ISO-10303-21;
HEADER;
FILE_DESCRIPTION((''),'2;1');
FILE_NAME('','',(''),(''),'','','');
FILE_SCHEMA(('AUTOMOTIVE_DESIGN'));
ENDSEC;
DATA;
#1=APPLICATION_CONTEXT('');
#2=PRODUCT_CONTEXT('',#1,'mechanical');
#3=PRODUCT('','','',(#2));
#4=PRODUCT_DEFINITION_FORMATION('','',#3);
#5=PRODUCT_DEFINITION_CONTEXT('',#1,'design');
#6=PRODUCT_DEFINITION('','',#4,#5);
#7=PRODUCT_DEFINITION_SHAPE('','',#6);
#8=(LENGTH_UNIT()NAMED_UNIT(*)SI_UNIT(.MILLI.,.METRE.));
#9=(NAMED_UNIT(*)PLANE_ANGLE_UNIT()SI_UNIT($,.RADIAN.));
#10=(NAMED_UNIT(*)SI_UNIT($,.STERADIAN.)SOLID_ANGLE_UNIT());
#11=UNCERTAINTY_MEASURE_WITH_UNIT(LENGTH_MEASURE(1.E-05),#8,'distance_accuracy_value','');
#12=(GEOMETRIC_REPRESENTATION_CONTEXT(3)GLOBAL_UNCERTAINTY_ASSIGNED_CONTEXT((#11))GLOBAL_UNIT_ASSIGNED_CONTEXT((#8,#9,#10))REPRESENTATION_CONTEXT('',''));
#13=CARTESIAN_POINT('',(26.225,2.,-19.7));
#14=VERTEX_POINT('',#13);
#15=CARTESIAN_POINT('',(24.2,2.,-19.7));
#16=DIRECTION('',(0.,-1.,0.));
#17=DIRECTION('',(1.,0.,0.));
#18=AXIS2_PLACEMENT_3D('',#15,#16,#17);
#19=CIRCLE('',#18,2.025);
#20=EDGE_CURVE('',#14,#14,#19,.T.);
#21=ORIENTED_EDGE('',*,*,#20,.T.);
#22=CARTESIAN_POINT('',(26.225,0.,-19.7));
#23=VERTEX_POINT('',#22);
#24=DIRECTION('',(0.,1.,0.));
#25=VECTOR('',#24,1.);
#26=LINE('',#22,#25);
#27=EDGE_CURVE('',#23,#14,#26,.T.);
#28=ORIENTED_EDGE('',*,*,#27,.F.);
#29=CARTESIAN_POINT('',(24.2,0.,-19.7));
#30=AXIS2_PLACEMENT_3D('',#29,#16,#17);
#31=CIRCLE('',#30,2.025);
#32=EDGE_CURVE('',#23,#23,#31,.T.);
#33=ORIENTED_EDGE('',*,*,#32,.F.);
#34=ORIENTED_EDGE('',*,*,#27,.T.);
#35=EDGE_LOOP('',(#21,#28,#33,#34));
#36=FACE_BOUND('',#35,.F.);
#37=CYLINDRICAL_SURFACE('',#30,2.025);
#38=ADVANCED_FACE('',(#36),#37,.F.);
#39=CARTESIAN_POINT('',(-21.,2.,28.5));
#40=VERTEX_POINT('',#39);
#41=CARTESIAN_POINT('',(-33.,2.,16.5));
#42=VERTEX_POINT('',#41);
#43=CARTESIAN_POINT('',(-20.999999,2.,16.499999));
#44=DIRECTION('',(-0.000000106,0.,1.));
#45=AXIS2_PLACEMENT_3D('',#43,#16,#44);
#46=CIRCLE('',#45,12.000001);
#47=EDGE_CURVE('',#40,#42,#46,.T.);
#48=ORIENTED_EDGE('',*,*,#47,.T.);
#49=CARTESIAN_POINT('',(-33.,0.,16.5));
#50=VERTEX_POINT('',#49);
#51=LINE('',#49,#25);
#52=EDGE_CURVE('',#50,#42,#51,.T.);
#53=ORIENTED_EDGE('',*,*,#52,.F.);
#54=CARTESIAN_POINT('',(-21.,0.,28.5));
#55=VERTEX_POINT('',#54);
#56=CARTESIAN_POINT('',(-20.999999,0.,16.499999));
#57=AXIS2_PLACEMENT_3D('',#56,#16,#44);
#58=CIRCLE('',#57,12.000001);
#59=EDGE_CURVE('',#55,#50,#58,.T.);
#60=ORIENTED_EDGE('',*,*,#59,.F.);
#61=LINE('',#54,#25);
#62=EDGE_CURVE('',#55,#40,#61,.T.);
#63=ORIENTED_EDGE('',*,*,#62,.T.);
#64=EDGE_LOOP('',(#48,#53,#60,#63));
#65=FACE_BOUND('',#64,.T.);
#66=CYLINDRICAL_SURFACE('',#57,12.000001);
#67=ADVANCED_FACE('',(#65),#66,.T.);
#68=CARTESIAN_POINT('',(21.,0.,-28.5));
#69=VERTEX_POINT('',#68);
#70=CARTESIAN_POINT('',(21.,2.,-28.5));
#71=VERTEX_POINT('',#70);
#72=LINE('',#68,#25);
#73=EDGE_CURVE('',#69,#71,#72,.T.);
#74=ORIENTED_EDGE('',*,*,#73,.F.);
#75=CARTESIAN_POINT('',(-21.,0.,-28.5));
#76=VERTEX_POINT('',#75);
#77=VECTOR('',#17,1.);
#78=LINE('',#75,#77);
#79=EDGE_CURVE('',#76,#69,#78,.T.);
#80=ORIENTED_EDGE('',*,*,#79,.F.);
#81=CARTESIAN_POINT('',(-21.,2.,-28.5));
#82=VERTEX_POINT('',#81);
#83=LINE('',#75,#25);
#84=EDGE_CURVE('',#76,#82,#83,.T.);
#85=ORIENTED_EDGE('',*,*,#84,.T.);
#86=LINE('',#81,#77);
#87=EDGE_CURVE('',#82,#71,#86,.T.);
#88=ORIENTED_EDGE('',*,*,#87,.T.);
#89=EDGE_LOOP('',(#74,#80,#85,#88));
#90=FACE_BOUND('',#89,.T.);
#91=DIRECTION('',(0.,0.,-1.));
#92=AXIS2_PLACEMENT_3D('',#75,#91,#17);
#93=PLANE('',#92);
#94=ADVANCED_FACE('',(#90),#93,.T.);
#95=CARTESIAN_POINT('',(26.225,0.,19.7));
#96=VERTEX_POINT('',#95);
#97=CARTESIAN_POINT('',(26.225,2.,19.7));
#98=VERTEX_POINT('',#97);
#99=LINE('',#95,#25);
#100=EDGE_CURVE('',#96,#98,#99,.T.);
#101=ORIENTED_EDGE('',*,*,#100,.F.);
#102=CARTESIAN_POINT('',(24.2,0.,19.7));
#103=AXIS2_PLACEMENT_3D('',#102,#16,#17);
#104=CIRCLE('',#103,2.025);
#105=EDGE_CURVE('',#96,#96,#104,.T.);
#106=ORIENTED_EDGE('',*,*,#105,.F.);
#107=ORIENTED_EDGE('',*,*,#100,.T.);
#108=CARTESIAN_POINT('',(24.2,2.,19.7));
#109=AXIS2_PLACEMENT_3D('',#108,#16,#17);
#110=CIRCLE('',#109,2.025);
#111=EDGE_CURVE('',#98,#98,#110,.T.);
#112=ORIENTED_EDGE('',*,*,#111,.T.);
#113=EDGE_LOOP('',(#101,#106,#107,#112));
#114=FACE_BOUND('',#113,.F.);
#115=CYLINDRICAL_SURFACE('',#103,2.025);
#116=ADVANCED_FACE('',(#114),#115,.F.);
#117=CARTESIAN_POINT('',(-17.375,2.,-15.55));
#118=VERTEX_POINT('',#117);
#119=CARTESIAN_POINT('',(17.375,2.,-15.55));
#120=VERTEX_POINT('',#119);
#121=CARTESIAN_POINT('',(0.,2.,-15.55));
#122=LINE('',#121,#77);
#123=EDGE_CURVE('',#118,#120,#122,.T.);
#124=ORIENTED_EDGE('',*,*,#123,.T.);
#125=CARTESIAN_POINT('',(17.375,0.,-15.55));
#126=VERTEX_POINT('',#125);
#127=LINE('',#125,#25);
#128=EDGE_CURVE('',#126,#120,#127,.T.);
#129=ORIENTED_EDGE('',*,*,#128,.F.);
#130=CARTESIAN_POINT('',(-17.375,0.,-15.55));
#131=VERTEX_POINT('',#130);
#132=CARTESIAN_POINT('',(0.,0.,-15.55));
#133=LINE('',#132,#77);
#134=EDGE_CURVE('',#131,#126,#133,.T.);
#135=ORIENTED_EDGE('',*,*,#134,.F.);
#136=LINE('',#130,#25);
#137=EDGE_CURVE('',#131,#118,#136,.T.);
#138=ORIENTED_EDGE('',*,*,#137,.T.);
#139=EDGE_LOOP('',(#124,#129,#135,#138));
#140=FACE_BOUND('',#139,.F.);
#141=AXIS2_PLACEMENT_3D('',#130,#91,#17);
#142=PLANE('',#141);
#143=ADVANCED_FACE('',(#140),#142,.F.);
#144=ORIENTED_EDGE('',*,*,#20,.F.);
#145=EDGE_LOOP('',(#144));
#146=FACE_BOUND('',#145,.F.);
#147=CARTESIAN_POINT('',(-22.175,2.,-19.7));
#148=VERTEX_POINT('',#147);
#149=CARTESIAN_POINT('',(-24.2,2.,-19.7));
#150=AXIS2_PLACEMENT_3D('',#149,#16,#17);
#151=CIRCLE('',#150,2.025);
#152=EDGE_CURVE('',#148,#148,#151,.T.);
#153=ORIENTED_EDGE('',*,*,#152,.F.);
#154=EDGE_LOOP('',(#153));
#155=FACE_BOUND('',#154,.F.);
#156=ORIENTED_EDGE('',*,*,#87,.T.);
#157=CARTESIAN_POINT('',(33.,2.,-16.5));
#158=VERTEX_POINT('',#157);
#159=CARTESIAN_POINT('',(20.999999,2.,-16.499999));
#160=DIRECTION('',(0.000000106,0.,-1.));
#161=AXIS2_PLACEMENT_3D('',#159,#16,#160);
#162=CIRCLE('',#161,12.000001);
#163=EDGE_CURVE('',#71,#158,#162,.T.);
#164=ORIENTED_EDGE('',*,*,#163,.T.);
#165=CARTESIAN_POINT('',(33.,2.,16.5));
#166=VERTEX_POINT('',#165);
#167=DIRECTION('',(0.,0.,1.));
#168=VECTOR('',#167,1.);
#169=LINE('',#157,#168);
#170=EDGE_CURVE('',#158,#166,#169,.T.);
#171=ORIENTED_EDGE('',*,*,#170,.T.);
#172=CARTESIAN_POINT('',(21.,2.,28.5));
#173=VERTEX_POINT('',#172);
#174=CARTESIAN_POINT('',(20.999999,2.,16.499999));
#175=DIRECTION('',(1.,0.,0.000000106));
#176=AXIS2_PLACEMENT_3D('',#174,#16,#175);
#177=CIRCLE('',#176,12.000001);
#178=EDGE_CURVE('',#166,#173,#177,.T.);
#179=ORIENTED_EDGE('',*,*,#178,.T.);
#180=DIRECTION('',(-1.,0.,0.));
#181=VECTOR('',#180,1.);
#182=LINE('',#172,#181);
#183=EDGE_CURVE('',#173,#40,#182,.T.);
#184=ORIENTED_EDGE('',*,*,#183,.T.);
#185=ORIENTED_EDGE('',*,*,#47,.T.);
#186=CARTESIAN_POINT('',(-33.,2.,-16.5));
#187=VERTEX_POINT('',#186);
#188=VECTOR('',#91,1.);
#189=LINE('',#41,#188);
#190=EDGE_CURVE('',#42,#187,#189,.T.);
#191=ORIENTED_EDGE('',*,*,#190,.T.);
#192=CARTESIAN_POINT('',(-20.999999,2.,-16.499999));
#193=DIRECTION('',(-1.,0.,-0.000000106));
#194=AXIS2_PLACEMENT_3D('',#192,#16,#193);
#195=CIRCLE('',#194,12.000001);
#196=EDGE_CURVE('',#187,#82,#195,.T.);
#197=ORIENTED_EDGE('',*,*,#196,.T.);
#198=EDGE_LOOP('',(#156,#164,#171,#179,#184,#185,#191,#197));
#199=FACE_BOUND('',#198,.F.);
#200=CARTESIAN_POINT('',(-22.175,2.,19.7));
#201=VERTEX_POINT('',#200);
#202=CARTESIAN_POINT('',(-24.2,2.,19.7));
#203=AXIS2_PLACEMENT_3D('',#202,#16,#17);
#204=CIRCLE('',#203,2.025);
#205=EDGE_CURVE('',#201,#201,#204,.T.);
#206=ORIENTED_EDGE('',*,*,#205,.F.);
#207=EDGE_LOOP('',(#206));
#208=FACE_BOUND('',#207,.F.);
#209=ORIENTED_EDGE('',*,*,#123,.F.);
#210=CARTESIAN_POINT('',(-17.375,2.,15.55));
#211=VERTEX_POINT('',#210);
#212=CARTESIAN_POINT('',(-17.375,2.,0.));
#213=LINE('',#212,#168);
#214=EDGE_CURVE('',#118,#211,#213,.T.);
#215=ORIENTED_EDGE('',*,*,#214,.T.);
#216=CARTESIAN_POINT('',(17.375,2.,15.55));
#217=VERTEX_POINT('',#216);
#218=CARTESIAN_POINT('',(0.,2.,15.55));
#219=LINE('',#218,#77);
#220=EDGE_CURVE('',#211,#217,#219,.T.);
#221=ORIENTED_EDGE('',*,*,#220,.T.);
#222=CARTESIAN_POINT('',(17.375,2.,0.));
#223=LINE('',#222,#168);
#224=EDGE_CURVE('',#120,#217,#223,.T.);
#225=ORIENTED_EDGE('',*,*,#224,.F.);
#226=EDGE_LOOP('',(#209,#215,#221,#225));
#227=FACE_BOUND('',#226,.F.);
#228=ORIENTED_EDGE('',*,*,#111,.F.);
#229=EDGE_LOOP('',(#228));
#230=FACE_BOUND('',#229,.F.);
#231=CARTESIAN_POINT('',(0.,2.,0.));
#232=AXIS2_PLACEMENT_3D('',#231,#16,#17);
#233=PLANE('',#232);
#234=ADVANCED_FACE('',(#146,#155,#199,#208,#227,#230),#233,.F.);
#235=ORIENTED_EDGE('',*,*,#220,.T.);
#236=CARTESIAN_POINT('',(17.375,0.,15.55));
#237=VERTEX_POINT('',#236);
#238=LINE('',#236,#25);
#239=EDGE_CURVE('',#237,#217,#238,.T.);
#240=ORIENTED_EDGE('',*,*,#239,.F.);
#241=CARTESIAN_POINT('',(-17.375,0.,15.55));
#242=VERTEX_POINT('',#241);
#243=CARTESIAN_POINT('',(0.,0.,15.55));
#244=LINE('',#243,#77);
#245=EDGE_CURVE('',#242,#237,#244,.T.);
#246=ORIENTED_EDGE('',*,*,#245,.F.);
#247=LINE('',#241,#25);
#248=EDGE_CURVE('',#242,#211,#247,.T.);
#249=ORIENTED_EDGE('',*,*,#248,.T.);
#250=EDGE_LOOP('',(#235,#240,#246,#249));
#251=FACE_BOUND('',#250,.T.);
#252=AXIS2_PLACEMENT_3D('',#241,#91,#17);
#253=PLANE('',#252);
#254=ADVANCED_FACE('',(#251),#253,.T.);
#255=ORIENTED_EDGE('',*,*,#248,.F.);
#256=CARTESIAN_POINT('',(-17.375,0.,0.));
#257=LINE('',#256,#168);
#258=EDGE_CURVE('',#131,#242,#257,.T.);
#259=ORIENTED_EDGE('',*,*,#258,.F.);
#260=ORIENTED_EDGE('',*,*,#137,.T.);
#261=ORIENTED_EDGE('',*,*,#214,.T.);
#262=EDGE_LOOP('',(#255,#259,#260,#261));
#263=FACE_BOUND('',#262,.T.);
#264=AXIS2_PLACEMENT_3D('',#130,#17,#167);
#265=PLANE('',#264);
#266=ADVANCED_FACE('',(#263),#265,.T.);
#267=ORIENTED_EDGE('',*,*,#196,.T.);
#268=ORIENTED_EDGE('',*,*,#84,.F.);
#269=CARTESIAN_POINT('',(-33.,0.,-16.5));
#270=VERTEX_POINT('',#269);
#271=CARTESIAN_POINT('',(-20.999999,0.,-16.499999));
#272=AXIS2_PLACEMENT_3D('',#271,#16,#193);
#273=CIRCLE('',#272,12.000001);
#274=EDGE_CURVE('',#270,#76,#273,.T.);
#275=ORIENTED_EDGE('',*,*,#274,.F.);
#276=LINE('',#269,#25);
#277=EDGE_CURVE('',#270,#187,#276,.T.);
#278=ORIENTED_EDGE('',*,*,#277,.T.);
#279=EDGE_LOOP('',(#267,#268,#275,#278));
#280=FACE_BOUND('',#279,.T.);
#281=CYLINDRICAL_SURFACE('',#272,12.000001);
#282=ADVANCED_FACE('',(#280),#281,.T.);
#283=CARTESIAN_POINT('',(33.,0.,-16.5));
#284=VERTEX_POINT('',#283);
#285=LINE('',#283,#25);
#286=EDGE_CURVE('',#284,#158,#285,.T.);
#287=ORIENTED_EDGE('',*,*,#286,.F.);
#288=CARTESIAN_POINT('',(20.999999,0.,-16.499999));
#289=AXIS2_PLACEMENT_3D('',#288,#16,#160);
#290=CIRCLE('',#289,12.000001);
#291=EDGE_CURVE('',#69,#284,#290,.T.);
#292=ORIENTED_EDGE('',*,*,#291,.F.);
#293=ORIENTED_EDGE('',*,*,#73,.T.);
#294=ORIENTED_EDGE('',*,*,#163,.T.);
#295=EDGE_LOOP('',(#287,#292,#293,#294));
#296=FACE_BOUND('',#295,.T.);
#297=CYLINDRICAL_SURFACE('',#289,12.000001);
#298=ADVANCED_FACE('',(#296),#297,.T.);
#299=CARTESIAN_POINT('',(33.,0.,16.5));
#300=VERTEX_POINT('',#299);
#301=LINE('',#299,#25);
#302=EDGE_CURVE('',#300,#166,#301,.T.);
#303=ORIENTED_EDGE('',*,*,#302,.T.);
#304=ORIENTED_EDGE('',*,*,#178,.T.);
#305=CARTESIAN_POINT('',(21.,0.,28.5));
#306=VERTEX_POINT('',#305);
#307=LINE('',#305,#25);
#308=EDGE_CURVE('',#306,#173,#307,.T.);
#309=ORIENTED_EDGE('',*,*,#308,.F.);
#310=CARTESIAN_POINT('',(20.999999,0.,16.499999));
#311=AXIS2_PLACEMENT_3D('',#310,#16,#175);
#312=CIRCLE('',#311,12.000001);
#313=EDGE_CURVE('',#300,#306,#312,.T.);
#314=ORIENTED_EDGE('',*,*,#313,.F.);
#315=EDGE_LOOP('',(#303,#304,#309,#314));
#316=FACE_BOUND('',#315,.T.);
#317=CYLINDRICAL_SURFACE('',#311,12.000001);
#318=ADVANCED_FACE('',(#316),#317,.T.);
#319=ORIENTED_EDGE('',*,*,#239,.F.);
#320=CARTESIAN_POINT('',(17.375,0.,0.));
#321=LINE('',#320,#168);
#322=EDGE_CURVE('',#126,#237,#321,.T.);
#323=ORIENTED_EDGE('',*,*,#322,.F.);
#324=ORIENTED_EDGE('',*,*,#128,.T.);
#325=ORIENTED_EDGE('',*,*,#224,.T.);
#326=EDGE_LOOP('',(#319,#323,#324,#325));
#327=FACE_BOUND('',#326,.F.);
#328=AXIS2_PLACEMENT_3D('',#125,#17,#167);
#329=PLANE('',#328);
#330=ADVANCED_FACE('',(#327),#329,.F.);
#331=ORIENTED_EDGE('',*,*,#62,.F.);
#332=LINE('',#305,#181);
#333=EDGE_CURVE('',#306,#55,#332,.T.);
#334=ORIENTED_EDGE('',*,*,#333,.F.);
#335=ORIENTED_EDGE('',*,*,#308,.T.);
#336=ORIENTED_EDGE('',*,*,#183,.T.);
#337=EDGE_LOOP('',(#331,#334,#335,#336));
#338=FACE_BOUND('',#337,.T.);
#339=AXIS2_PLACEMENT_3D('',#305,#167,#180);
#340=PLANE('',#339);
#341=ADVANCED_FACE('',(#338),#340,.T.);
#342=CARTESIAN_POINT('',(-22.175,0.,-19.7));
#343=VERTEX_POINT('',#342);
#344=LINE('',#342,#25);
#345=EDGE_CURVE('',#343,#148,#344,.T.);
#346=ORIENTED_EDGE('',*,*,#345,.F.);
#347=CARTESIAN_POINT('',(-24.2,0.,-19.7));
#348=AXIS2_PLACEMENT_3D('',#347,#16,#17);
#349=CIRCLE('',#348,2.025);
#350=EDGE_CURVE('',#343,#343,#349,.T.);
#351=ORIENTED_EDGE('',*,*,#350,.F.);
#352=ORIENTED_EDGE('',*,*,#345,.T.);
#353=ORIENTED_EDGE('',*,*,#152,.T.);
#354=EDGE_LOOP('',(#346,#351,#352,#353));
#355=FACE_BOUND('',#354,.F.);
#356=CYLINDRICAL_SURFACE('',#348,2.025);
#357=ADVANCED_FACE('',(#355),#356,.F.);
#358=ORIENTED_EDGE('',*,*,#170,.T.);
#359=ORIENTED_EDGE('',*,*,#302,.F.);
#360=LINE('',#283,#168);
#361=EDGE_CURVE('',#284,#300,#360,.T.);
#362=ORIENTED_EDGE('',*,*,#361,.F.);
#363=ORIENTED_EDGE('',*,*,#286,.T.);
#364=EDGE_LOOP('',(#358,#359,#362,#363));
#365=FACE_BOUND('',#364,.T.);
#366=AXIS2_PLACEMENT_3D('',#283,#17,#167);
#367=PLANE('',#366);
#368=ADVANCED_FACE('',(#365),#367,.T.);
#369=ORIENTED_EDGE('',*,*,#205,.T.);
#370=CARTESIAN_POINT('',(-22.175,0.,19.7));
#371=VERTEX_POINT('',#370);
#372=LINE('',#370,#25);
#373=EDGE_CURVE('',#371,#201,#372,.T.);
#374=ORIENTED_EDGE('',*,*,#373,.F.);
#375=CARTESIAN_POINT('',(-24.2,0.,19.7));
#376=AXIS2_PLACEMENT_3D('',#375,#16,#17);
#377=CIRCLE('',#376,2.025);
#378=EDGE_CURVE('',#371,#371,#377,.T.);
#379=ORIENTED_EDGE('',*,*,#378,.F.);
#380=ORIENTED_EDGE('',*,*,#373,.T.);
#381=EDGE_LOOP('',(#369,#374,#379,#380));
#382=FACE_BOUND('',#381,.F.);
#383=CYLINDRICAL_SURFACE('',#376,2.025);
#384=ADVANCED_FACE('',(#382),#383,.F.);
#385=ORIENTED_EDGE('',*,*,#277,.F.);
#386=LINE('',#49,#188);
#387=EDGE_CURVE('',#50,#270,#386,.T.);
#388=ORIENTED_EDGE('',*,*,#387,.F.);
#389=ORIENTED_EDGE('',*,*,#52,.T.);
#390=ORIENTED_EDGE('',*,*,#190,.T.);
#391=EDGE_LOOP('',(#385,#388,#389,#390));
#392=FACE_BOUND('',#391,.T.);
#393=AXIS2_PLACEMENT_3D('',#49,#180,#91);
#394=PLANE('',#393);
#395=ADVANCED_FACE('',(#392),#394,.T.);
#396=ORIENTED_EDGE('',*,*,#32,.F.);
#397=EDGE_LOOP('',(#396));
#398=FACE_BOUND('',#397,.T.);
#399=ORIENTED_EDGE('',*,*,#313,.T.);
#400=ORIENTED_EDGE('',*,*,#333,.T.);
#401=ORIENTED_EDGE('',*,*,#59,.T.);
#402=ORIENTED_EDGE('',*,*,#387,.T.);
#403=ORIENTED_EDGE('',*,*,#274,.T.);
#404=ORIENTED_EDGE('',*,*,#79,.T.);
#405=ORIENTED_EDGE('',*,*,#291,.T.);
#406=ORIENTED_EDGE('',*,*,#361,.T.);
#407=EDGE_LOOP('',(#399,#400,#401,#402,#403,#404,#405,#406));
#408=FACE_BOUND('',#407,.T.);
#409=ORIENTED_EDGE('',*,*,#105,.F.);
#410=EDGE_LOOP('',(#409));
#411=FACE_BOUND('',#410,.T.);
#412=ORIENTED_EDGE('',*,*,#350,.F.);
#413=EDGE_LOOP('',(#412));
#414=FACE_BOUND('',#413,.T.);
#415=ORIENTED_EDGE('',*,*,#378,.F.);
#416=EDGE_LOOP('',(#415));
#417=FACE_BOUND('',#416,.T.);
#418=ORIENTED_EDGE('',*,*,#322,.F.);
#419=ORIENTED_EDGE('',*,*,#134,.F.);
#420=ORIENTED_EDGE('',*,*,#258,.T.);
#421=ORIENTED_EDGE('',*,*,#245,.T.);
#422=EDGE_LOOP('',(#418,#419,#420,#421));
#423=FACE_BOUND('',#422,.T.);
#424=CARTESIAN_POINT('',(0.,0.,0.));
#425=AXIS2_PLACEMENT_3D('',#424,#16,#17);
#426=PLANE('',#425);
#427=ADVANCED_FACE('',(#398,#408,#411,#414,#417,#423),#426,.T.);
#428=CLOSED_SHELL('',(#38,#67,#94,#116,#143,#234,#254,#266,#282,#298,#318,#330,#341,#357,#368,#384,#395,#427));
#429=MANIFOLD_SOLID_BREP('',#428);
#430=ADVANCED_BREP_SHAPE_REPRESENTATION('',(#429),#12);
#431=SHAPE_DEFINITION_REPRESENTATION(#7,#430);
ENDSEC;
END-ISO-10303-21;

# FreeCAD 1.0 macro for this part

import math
import FreeCAD as App
import Part
import Sketcher


def add_polygon(sketch, points):
    """Adds a closed chain of lines whose ends are joined by coincident constraints."""
    first, n = sketch.GeometryCount, len(points)
    for a, b in zip(points, points[1:] + points[:1]):
        sketch.addGeometry(Part.LineSegment(App.Vector(*a, 0), App.Vector(*b, 0)), False)
    for i in range(n):
        sketch.addConstraint(Sketcher.Constraint("Coincident", first + i, 2, first + (i + 1) % n, 1))

doc = App.newDocument("Part")
body = doc.addObject("PartDesign::Body", "Body")

# Sketch on XZ plane
sketch1 = body.newObject("Sketcher::SketchObject", "Sketch")
sketch1.AttachmentSupport = (doc.getObject("XZ_Plane"), [""])
sketch1.MapMode = "FlatFace"
sketch1.addGeometry(Part.LineSegment(App.Vector(-21, -28.5, 0), App.Vector(21, -28.5, 0)), False)  # 0
sketch1.addGeometry(Part.ArcOfCircle(Part.Circle(App.Vector(21, -16.5, 0), App.Vector(0, 0, 1), 12), math.radians(-90), math.radians(0)), False)  # 1
sketch1.addGeometry(Part.LineSegment(App.Vector(33, -16.5, 0), App.Vector(33, 16.5, 0)), False)  # 2
sketch1.addGeometry(Part.ArcOfCircle(Part.Circle(App.Vector(21, 16.5, 0), App.Vector(0, 0, 1), 12), math.radians(0), math.radians(90)), False)  # 3
sketch1.addGeometry(Part.LineSegment(App.Vector(21, 28.5, 0), App.Vector(-21, 28.5, 0)), False)  # 4
sketch1.addGeometry(Part.ArcOfCircle(Part.Circle(App.Vector(-21, 16.5, 0), App.Vector(0, 0, 1), 12), math.radians(90), math.radians(180)), False)  # 5
sketch1.addGeometry(Part.LineSegment(App.Vector(-33, 16.5, 0), App.Vector(-33, -16.5, 0)), False)  # 6
sketch1.addGeometry(Part.ArcOfCircle(Part.Circle(App.Vector(-21, -16.5, 0), App.Vector(0, 0, 1), 12), math.radians(-180), math.radians(-90)), False)  # 7
sketch1.addGeometry(Part.Circle(App.Vector(-24.2, -19.7, 0), App.Vector(0, 0, 1), 2), False)  # 8
sketch1.addGeometry(Part.Circle(App.Vector(24.2, -19.7, 0), App.Vector(0, 0, 1), 2), False)  # 9
add_polygon(sketch1, [(17.4, -15.6), (-17.4, -15.6), (-17.4, 15.6), (17.4, 15.6)])  # lines 10-13
sketch1.addGeometry(Part.Circle(App.Vector(-24.2, 19.7, 0), App.Vector(0, 0, 1), 2), False)  # 14
sketch1.addGeometry(Part.Circle(App.Vector(24.2, 19.7, 0), App.Vector(0, 0, 1), 2), False)  # 15
sketch1.addConstraint(Sketcher.Constraint("Tangent", 0, 2, 1, 1))
sketch1.addConstraint(Sketcher.Constraint("Tangent", 1, 2, 2, 1))
sketch1.addConstraint(Sketcher.Constraint("Tangent", 2, 2, 3, 1))
sketch1.addConstraint(Sketcher.Constraint("Tangent", 3, 2, 4, 1))
sketch1.addConstraint(Sketcher.Constraint("Tangent", 4, 2, 5, 1))
sketch1.addConstraint(Sketcher.Constraint("Tangent", 5, 2, 6, 1))
sketch1.addConstraint(Sketcher.Constraint("Tangent", 6, 2, 7, 1))
sketch1.addConstraint(Sketcher.Constraint("Tangent", 7, 2, 0, 1))
sketch1.addConstraint(Sketcher.Constraint("Horizontal", 0))
sketch1.addConstraint(Sketcher.Constraint("Vertical", 2))
sketch1.addConstraint(Sketcher.Constraint("Horizontal", 4))
sketch1.addConstraint(Sketcher.Constraint("Vertical", 6))
sketch1.addConstraint(Sketcher.Constraint("Horizontal", 10))
sketch1.addConstraint(Sketcher.Constraint("Vertical", 11))
sketch1.addConstraint(Sketcher.Constraint("Horizontal", 12))
sketch1.addConstraint(Sketcher.Constraint("Vertical", 13))
sketch1.addConstraint(Sketcher.Constraint("Equal", 1, 3))
sketch1.addConstraint(Sketcher.Constraint("Equal", 3, 5))
sketch1.addConstraint(Sketcher.Constraint("Equal", 5, 7))
sketch1.addConstraint(Sketcher.Constraint("Equal", 8, 9))
sketch1.addConstraint(Sketcher.Constraint("Equal", 9, 14))
sketch1.addConstraint(Sketcher.Constraint("Equal", 14, 15))
sketch1.addConstraint(Sketcher.Constraint("Symmetric", 1, 3, 5, 3, -1, 1))
sketch1.addConstraint(Sketcher.Constraint("Symmetric", 9, 3, 14, 3, -1, 1))
sketch1.addConstraint(Sketcher.Constraint("Symmetric", 8, 3, 15, 3, -1, 1))
sketch1.addConstraint(Sketcher.Constraint("Symmetric", 10, 2, 12, 2, -1, 1))
sketch1.addConstraint(Sketcher.Constraint("Symmetric", 8, 3, 9, 3, -2))
sketch1.addConstraint(Sketcher.Constraint("Radius", 1, 12.000001))
sketch1.addConstraint(Sketcher.Constraint("Diameter", 8, 4.05))
sketch1.addConstraint(Sketcher.Constraint("DistanceX", 0, 1, 0, 2, 42.0))
sketch1.addConstraint(Sketcher.Constraint("DistanceY", 2, 1, 2, 2, 33.0))
sketch1.addConstraint(Sketcher.Constraint("DistanceY", 11, 1, 11, 2, 31.1))
sketch1.addConstraint(Sketcher.Constraint("DistanceX", 10, 2, 10, 1, 34.75))
sketch1.addConstraint(Sketcher.Constraint("DistanceX", 8, 3, -1, 1, 24.2))
sketch1.addConstraint(Sketcher.Constraint("DistanceY", 8, 3, -1, 1, 19.7))
pad1 = body.newObject("PartDesign::Pad", "Pad")
pad1.Profile = sketch1
pad1.Length = 2
pad1.Reversed = True

doc.recompute()
